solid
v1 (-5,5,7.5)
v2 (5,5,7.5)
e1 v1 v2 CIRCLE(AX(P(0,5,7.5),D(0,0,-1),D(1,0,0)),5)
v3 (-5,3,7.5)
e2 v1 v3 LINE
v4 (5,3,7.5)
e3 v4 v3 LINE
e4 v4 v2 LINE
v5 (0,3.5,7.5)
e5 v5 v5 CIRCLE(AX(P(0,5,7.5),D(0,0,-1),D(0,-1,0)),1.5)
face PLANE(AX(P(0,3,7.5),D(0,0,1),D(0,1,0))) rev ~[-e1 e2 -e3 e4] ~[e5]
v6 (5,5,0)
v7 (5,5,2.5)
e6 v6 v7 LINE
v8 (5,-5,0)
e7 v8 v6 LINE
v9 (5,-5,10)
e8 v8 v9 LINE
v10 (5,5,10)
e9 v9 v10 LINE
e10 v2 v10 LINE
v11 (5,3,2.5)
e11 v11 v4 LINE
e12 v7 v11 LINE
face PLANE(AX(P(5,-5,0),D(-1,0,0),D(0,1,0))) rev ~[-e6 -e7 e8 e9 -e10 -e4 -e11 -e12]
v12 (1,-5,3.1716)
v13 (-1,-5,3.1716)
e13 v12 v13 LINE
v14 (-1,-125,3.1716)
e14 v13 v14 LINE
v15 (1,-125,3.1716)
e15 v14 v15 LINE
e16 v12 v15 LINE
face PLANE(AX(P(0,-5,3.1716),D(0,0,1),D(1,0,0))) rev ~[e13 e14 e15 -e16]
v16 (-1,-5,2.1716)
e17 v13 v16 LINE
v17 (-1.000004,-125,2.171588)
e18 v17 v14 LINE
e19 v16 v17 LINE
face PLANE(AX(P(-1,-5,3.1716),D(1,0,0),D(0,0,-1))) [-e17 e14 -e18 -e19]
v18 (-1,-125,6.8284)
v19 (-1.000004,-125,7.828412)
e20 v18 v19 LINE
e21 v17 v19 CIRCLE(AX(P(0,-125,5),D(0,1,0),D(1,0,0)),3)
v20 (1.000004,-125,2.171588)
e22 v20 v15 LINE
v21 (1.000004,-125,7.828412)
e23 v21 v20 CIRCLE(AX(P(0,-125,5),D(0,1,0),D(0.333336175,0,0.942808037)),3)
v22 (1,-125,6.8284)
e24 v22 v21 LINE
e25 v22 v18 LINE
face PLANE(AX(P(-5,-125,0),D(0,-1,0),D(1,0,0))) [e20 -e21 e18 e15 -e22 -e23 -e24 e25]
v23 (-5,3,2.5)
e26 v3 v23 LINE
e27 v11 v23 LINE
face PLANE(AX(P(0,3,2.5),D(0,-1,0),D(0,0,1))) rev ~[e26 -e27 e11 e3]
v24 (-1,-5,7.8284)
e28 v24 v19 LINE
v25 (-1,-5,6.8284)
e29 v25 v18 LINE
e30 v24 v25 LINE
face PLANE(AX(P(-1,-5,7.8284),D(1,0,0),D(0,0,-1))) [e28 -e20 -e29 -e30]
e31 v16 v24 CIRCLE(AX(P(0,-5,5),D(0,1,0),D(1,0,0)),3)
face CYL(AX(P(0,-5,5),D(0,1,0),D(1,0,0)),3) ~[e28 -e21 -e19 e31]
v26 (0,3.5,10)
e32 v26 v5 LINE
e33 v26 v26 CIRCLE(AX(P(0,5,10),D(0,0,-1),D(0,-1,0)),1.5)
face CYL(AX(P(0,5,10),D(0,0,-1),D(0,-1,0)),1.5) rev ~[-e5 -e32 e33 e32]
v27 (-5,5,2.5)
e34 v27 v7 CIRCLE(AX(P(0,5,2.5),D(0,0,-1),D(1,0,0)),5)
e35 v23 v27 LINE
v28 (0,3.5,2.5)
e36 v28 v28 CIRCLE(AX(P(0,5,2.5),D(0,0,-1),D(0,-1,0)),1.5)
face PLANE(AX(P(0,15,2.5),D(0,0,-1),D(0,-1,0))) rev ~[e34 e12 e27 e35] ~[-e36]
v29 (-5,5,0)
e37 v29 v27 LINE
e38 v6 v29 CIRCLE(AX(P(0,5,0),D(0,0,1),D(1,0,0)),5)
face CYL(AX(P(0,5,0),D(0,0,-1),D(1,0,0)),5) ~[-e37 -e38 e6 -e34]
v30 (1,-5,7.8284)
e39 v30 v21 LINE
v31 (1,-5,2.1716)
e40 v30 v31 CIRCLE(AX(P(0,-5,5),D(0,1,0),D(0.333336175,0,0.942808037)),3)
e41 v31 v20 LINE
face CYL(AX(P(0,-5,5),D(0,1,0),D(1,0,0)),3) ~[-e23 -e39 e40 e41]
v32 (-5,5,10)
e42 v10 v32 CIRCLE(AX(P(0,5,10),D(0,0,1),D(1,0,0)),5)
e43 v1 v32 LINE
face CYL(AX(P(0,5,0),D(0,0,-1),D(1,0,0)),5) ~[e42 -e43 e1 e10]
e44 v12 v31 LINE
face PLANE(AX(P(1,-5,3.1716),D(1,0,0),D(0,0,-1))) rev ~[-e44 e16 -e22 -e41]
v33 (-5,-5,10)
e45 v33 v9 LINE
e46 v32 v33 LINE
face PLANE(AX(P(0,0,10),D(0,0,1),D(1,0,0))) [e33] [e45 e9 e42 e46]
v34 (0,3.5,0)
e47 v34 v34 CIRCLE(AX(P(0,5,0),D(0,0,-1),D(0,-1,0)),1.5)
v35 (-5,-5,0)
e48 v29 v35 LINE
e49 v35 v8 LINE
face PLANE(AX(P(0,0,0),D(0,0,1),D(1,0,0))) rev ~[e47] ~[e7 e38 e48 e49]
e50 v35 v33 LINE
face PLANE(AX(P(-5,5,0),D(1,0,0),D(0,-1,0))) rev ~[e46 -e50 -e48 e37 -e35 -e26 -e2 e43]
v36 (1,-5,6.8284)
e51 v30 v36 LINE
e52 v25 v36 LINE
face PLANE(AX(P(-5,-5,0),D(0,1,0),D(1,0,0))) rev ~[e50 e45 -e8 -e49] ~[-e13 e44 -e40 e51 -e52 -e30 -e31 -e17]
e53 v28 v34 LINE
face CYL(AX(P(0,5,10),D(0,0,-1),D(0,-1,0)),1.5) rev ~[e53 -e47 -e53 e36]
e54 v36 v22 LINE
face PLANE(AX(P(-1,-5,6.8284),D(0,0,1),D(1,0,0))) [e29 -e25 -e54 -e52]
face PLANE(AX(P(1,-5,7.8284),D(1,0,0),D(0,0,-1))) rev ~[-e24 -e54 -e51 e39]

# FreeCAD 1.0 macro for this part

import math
import FreeCAD as App
import Part
import Sketcher

V = App.Vector


def add_polygon(sketch, points):
    """Adds a closed chain of lines whose ends are joined by coincident constraints."""
    first, n = sketch.GeometryCount, len(points)
    for a, b in zip(points, points[1:] + points[:1]):
        sketch.addGeometry(Part.LineSegment(App.Vector(*a, 0), App.Vector(*b, 0)), False)
    for i in range(n):
        sketch.addConstraint(Sketcher.Constraint("Coincident", first + i, 2, first + (i + 1) % n, 1))

doc = App.newDocument("Part")
body = doc.addObject("PartDesign::Body", "Body")

sketch1 = doc.addObject("Sketcher::SketchObject", "Sketch")
body.addObject(sketch1)
sketch1.AttachmentSupport = (doc.XY_Plane, [""])
sketch1.MapMode = "FlatFace"
sketch1.addGeometry([
    Part.LineSegment(V(-5, 5, 0), V(-5, -5, 0)),
    Part.LineSegment(V(-5, -5, 0), V(5, -5, 0)),
    Part.LineSegment(V(5, -5, 0), V(5, 5, 0)),
    Part.ArcOfCircle(Part.Circle(V(0, 5, 0), V(0, 0, 1), 5), math.radians(0), math.radians(180)),
], False)
sketch1.addConstraint([
    Sketcher.Constraint("Coincident", 0, 2, 1, 1),
    Sketcher.Constraint("Coincident", 1, 2, 2, 1),
    Sketcher.Constraint("Tangent", 2, 2, 3, 1),
    Sketcher.Constraint("Tangent", 3, 2, 0, 1),
    Sketcher.Constraint("Vertical", 0),
    Sketcher.Constraint("Horizontal", 1),
    Sketcher.Constraint("Vertical", 2),
    Sketcher.Constraint("Symmetric", 0, 2, 2, 2, -1, 1),
    Sketcher.Constraint("Equal", 1, 0),
    Sketcher.Constraint("Radius", 3, 5.0),
])
pad1 = doc.addObject("PartDesign::Pad", "Pad")
body.addObject(pad1)
pad1.Profile = sketch1
pad1.Length = 10

sketch2 = doc.addObject("Sketcher::SketchObject", "Sketch001")
body.addObject(sketch2)
sketch2.AttachmentSupport = (doc.XY_Plane, [""])
sketch2.MapMode = "FlatFace"
sketch2.AttachmentOffset = App.Placement(V(0, 0, 10), App.Rotation())
sketch2.addGeometry(Part.Circle(V(0, 5, 0), V(0, 0, 1), 1.5), False)
sketch2.addConstraint([
    Sketcher.Constraint("PointOnObject", 0, 3, -2),
    Sketcher.Constraint("Diameter", 0, 3.0),
    Sketcher.Constraint("DistanceY", -1, 1, 0, 3, 5.0),
])
doc.recompute()
hole = doc.addObject("PartDesign::Hole", "Hole")
body.addObject(hole)
hole.Profile = sketch2
hole.ThreadType = "None"
hole.Diameter = 3
hole.DepthType = "ThroughAll"

sketch3 = doc.addObject("Sketcher::SketchObject", "Sketch002")
body.addObject(sketch3)
sketch3.AttachmentSupport = (doc.YZ_Plane, [""])
sketch3.MapMode = "FlatFace"
add_polygon(sketch3, [(3, 2), (15, 2), (15, 8), (3, 8)])
sketch3.addConstraint([
    Sketcher.Constraint("Horizontal", 0),
    Sketcher.Constraint("Vertical", 1),
    Sketcher.Constraint("Horizontal", 2),
    Sketcher.Constraint("Vertical", 3),
    Sketcher.Constraint("DistanceX", 0, 1, 0, 2, 12.0),
    Sketcher.Constraint("DistanceY", 1, 1, 1, 2, 5.0),
    Sketcher.Constraint("DistanceY", -1, 1, 0, 2, 2.5),
    Sketcher.Constraint("DistanceX", -1, 1, 0, 2, 15.0),
])
pocket1 = doc.addObject("PartDesign::Pocket", "Pocket")
body.addObject(pocket1)
pocket1.Profile = sketch3
pocket1.Length = 100
pocket1.Midplane = True

sketch4 = doc.addObject("Sketcher::SketchObject", "Sketch003")
body.addObject(sketch4)
sketch4.AttachmentSupport = (doc.XZ_Plane, [""])
sketch4.MapMode = "FlatFace"
sketch4.AttachmentOffset = App.Placement(V(0, 0, 5), App.Rotation())
sketch4.addGeometry(Part.Circle(V(0, 5, 0), V(0, 0, 1), 3), False)
sketch4.addConstraint([
    Sketcher.Constraint("PointOnObject", 0, 3, -2),
    Sketcher.Constraint("Diameter", 0, 6.0),
    Sketcher.Constraint("DistanceY", -1, 1, 0, 3, 5.0),
])
pad2 = doc.addObject("PartDesign::Pad", "Pad001")
body.addObject(pad2)
pad2.Profile = sketch4
pad2.Length = 120

sketch5 = doc.addObject("Sketcher::SketchObject", "Sketch004")
body.addObject(sketch5)
sketch5.AttachmentSupport = (doc.XZ_Plane, [""])
sketch5.MapMode = "FlatFace"
sketch5.AttachmentOffset = App.Placement(V(0, 0, 5), App.Rotation())
sketch5.addGeometry([
    Part.LineSegment(V(1, 6.8, 0), V(1, 7.8, 0)),
    Part.ArcOfCircle(Part.Circle(V(0, 5, 0), V(0, 0, 1), 3), math.radians(71), math.radians(109)),
    Part.LineSegment(V(-1, 7.8, 0), V(-1, 6.8, 0)),
    Part.LineSegment(V(-1, 6.8, 0), V(1, 6.8, 0)),
    Part.LineSegment(V(1, 2.2, 0), V(1, 3.2, 0)),
    Part.LineSegment(V(1, 3.2, 0), V(-1, 3.2, 0)),
    Part.LineSegment(V(-1, 3.2, 0), V(-1, 2.2, 0)),
    Part.ArcOfCircle(Part.Circle(V(0, 5, 0), V(0, 0, 1), 3), math.radians(-109), math.radians(-71)),
], False)
sketch5.addConstraint([
    Sketcher.Constraint("Coincident", 0, 2, 1, 1),
    Sketcher.Constraint("Coincident", 1, 2, 2, 1),
    Sketcher.Constraint("Coincident", 2, 2, 3, 1),
    Sketcher.Constraint("Coincident", 3, 2, 0, 1),
    Sketcher.Constraint("Coincident", 4, 2, 5, 1),
    Sketcher.Constraint("Coincident", 5, 2, 6, 1),
    Sketcher.Constraint("Coincident", 6, 2, 7, 1),
    Sketcher.Constraint("Coincident", 7, 2, 4, 1),
    Sketcher.Constraint("Vertical", 0),
    Sketcher.Constraint("Vertical", 2),
    Sketcher.Constraint("Horizontal", 3),
    Sketcher.Constraint("Vertical", 4),
    Sketcher.Constraint("Horizontal", 5),
    Sketcher.Constraint("Vertical", 6),
    Sketcher.Constraint("Coincident", 7, 3, 1, 3),
    Sketcher.Constraint("Equal", 1, 7),
    Sketcher.Constraint("Symmetric", 0, 2, 1, 2, -2),
    Sketcher.Constraint("Horizontal", 6, 2, 7, 2),
    Sketcher.Constraint("Vertical", 3, 2, 4, 2),
    Sketcher.Constraint("Equal", 2, 4),
    Sketcher.Constraint("Radius", 1, 3.0),
    Sketcher.Constraint("DistanceX", 3, 1, 3, 2, 2.0),
    Sketcher.Constraint("DistanceY", 0, 1, 0, 2, 1.0),
    Sketcher.Constraint("DistanceY", -1, 1, 1, 3, 5.0),
])
pocket2 = doc.addObject("PartDesign::Pocket", "Pocket001")
body.addObject(pocket2)
pocket2.Profile = sketch5
pocket2.Type = "ThroughAll"
pocket2.Reversed = True

doc.recompute()
